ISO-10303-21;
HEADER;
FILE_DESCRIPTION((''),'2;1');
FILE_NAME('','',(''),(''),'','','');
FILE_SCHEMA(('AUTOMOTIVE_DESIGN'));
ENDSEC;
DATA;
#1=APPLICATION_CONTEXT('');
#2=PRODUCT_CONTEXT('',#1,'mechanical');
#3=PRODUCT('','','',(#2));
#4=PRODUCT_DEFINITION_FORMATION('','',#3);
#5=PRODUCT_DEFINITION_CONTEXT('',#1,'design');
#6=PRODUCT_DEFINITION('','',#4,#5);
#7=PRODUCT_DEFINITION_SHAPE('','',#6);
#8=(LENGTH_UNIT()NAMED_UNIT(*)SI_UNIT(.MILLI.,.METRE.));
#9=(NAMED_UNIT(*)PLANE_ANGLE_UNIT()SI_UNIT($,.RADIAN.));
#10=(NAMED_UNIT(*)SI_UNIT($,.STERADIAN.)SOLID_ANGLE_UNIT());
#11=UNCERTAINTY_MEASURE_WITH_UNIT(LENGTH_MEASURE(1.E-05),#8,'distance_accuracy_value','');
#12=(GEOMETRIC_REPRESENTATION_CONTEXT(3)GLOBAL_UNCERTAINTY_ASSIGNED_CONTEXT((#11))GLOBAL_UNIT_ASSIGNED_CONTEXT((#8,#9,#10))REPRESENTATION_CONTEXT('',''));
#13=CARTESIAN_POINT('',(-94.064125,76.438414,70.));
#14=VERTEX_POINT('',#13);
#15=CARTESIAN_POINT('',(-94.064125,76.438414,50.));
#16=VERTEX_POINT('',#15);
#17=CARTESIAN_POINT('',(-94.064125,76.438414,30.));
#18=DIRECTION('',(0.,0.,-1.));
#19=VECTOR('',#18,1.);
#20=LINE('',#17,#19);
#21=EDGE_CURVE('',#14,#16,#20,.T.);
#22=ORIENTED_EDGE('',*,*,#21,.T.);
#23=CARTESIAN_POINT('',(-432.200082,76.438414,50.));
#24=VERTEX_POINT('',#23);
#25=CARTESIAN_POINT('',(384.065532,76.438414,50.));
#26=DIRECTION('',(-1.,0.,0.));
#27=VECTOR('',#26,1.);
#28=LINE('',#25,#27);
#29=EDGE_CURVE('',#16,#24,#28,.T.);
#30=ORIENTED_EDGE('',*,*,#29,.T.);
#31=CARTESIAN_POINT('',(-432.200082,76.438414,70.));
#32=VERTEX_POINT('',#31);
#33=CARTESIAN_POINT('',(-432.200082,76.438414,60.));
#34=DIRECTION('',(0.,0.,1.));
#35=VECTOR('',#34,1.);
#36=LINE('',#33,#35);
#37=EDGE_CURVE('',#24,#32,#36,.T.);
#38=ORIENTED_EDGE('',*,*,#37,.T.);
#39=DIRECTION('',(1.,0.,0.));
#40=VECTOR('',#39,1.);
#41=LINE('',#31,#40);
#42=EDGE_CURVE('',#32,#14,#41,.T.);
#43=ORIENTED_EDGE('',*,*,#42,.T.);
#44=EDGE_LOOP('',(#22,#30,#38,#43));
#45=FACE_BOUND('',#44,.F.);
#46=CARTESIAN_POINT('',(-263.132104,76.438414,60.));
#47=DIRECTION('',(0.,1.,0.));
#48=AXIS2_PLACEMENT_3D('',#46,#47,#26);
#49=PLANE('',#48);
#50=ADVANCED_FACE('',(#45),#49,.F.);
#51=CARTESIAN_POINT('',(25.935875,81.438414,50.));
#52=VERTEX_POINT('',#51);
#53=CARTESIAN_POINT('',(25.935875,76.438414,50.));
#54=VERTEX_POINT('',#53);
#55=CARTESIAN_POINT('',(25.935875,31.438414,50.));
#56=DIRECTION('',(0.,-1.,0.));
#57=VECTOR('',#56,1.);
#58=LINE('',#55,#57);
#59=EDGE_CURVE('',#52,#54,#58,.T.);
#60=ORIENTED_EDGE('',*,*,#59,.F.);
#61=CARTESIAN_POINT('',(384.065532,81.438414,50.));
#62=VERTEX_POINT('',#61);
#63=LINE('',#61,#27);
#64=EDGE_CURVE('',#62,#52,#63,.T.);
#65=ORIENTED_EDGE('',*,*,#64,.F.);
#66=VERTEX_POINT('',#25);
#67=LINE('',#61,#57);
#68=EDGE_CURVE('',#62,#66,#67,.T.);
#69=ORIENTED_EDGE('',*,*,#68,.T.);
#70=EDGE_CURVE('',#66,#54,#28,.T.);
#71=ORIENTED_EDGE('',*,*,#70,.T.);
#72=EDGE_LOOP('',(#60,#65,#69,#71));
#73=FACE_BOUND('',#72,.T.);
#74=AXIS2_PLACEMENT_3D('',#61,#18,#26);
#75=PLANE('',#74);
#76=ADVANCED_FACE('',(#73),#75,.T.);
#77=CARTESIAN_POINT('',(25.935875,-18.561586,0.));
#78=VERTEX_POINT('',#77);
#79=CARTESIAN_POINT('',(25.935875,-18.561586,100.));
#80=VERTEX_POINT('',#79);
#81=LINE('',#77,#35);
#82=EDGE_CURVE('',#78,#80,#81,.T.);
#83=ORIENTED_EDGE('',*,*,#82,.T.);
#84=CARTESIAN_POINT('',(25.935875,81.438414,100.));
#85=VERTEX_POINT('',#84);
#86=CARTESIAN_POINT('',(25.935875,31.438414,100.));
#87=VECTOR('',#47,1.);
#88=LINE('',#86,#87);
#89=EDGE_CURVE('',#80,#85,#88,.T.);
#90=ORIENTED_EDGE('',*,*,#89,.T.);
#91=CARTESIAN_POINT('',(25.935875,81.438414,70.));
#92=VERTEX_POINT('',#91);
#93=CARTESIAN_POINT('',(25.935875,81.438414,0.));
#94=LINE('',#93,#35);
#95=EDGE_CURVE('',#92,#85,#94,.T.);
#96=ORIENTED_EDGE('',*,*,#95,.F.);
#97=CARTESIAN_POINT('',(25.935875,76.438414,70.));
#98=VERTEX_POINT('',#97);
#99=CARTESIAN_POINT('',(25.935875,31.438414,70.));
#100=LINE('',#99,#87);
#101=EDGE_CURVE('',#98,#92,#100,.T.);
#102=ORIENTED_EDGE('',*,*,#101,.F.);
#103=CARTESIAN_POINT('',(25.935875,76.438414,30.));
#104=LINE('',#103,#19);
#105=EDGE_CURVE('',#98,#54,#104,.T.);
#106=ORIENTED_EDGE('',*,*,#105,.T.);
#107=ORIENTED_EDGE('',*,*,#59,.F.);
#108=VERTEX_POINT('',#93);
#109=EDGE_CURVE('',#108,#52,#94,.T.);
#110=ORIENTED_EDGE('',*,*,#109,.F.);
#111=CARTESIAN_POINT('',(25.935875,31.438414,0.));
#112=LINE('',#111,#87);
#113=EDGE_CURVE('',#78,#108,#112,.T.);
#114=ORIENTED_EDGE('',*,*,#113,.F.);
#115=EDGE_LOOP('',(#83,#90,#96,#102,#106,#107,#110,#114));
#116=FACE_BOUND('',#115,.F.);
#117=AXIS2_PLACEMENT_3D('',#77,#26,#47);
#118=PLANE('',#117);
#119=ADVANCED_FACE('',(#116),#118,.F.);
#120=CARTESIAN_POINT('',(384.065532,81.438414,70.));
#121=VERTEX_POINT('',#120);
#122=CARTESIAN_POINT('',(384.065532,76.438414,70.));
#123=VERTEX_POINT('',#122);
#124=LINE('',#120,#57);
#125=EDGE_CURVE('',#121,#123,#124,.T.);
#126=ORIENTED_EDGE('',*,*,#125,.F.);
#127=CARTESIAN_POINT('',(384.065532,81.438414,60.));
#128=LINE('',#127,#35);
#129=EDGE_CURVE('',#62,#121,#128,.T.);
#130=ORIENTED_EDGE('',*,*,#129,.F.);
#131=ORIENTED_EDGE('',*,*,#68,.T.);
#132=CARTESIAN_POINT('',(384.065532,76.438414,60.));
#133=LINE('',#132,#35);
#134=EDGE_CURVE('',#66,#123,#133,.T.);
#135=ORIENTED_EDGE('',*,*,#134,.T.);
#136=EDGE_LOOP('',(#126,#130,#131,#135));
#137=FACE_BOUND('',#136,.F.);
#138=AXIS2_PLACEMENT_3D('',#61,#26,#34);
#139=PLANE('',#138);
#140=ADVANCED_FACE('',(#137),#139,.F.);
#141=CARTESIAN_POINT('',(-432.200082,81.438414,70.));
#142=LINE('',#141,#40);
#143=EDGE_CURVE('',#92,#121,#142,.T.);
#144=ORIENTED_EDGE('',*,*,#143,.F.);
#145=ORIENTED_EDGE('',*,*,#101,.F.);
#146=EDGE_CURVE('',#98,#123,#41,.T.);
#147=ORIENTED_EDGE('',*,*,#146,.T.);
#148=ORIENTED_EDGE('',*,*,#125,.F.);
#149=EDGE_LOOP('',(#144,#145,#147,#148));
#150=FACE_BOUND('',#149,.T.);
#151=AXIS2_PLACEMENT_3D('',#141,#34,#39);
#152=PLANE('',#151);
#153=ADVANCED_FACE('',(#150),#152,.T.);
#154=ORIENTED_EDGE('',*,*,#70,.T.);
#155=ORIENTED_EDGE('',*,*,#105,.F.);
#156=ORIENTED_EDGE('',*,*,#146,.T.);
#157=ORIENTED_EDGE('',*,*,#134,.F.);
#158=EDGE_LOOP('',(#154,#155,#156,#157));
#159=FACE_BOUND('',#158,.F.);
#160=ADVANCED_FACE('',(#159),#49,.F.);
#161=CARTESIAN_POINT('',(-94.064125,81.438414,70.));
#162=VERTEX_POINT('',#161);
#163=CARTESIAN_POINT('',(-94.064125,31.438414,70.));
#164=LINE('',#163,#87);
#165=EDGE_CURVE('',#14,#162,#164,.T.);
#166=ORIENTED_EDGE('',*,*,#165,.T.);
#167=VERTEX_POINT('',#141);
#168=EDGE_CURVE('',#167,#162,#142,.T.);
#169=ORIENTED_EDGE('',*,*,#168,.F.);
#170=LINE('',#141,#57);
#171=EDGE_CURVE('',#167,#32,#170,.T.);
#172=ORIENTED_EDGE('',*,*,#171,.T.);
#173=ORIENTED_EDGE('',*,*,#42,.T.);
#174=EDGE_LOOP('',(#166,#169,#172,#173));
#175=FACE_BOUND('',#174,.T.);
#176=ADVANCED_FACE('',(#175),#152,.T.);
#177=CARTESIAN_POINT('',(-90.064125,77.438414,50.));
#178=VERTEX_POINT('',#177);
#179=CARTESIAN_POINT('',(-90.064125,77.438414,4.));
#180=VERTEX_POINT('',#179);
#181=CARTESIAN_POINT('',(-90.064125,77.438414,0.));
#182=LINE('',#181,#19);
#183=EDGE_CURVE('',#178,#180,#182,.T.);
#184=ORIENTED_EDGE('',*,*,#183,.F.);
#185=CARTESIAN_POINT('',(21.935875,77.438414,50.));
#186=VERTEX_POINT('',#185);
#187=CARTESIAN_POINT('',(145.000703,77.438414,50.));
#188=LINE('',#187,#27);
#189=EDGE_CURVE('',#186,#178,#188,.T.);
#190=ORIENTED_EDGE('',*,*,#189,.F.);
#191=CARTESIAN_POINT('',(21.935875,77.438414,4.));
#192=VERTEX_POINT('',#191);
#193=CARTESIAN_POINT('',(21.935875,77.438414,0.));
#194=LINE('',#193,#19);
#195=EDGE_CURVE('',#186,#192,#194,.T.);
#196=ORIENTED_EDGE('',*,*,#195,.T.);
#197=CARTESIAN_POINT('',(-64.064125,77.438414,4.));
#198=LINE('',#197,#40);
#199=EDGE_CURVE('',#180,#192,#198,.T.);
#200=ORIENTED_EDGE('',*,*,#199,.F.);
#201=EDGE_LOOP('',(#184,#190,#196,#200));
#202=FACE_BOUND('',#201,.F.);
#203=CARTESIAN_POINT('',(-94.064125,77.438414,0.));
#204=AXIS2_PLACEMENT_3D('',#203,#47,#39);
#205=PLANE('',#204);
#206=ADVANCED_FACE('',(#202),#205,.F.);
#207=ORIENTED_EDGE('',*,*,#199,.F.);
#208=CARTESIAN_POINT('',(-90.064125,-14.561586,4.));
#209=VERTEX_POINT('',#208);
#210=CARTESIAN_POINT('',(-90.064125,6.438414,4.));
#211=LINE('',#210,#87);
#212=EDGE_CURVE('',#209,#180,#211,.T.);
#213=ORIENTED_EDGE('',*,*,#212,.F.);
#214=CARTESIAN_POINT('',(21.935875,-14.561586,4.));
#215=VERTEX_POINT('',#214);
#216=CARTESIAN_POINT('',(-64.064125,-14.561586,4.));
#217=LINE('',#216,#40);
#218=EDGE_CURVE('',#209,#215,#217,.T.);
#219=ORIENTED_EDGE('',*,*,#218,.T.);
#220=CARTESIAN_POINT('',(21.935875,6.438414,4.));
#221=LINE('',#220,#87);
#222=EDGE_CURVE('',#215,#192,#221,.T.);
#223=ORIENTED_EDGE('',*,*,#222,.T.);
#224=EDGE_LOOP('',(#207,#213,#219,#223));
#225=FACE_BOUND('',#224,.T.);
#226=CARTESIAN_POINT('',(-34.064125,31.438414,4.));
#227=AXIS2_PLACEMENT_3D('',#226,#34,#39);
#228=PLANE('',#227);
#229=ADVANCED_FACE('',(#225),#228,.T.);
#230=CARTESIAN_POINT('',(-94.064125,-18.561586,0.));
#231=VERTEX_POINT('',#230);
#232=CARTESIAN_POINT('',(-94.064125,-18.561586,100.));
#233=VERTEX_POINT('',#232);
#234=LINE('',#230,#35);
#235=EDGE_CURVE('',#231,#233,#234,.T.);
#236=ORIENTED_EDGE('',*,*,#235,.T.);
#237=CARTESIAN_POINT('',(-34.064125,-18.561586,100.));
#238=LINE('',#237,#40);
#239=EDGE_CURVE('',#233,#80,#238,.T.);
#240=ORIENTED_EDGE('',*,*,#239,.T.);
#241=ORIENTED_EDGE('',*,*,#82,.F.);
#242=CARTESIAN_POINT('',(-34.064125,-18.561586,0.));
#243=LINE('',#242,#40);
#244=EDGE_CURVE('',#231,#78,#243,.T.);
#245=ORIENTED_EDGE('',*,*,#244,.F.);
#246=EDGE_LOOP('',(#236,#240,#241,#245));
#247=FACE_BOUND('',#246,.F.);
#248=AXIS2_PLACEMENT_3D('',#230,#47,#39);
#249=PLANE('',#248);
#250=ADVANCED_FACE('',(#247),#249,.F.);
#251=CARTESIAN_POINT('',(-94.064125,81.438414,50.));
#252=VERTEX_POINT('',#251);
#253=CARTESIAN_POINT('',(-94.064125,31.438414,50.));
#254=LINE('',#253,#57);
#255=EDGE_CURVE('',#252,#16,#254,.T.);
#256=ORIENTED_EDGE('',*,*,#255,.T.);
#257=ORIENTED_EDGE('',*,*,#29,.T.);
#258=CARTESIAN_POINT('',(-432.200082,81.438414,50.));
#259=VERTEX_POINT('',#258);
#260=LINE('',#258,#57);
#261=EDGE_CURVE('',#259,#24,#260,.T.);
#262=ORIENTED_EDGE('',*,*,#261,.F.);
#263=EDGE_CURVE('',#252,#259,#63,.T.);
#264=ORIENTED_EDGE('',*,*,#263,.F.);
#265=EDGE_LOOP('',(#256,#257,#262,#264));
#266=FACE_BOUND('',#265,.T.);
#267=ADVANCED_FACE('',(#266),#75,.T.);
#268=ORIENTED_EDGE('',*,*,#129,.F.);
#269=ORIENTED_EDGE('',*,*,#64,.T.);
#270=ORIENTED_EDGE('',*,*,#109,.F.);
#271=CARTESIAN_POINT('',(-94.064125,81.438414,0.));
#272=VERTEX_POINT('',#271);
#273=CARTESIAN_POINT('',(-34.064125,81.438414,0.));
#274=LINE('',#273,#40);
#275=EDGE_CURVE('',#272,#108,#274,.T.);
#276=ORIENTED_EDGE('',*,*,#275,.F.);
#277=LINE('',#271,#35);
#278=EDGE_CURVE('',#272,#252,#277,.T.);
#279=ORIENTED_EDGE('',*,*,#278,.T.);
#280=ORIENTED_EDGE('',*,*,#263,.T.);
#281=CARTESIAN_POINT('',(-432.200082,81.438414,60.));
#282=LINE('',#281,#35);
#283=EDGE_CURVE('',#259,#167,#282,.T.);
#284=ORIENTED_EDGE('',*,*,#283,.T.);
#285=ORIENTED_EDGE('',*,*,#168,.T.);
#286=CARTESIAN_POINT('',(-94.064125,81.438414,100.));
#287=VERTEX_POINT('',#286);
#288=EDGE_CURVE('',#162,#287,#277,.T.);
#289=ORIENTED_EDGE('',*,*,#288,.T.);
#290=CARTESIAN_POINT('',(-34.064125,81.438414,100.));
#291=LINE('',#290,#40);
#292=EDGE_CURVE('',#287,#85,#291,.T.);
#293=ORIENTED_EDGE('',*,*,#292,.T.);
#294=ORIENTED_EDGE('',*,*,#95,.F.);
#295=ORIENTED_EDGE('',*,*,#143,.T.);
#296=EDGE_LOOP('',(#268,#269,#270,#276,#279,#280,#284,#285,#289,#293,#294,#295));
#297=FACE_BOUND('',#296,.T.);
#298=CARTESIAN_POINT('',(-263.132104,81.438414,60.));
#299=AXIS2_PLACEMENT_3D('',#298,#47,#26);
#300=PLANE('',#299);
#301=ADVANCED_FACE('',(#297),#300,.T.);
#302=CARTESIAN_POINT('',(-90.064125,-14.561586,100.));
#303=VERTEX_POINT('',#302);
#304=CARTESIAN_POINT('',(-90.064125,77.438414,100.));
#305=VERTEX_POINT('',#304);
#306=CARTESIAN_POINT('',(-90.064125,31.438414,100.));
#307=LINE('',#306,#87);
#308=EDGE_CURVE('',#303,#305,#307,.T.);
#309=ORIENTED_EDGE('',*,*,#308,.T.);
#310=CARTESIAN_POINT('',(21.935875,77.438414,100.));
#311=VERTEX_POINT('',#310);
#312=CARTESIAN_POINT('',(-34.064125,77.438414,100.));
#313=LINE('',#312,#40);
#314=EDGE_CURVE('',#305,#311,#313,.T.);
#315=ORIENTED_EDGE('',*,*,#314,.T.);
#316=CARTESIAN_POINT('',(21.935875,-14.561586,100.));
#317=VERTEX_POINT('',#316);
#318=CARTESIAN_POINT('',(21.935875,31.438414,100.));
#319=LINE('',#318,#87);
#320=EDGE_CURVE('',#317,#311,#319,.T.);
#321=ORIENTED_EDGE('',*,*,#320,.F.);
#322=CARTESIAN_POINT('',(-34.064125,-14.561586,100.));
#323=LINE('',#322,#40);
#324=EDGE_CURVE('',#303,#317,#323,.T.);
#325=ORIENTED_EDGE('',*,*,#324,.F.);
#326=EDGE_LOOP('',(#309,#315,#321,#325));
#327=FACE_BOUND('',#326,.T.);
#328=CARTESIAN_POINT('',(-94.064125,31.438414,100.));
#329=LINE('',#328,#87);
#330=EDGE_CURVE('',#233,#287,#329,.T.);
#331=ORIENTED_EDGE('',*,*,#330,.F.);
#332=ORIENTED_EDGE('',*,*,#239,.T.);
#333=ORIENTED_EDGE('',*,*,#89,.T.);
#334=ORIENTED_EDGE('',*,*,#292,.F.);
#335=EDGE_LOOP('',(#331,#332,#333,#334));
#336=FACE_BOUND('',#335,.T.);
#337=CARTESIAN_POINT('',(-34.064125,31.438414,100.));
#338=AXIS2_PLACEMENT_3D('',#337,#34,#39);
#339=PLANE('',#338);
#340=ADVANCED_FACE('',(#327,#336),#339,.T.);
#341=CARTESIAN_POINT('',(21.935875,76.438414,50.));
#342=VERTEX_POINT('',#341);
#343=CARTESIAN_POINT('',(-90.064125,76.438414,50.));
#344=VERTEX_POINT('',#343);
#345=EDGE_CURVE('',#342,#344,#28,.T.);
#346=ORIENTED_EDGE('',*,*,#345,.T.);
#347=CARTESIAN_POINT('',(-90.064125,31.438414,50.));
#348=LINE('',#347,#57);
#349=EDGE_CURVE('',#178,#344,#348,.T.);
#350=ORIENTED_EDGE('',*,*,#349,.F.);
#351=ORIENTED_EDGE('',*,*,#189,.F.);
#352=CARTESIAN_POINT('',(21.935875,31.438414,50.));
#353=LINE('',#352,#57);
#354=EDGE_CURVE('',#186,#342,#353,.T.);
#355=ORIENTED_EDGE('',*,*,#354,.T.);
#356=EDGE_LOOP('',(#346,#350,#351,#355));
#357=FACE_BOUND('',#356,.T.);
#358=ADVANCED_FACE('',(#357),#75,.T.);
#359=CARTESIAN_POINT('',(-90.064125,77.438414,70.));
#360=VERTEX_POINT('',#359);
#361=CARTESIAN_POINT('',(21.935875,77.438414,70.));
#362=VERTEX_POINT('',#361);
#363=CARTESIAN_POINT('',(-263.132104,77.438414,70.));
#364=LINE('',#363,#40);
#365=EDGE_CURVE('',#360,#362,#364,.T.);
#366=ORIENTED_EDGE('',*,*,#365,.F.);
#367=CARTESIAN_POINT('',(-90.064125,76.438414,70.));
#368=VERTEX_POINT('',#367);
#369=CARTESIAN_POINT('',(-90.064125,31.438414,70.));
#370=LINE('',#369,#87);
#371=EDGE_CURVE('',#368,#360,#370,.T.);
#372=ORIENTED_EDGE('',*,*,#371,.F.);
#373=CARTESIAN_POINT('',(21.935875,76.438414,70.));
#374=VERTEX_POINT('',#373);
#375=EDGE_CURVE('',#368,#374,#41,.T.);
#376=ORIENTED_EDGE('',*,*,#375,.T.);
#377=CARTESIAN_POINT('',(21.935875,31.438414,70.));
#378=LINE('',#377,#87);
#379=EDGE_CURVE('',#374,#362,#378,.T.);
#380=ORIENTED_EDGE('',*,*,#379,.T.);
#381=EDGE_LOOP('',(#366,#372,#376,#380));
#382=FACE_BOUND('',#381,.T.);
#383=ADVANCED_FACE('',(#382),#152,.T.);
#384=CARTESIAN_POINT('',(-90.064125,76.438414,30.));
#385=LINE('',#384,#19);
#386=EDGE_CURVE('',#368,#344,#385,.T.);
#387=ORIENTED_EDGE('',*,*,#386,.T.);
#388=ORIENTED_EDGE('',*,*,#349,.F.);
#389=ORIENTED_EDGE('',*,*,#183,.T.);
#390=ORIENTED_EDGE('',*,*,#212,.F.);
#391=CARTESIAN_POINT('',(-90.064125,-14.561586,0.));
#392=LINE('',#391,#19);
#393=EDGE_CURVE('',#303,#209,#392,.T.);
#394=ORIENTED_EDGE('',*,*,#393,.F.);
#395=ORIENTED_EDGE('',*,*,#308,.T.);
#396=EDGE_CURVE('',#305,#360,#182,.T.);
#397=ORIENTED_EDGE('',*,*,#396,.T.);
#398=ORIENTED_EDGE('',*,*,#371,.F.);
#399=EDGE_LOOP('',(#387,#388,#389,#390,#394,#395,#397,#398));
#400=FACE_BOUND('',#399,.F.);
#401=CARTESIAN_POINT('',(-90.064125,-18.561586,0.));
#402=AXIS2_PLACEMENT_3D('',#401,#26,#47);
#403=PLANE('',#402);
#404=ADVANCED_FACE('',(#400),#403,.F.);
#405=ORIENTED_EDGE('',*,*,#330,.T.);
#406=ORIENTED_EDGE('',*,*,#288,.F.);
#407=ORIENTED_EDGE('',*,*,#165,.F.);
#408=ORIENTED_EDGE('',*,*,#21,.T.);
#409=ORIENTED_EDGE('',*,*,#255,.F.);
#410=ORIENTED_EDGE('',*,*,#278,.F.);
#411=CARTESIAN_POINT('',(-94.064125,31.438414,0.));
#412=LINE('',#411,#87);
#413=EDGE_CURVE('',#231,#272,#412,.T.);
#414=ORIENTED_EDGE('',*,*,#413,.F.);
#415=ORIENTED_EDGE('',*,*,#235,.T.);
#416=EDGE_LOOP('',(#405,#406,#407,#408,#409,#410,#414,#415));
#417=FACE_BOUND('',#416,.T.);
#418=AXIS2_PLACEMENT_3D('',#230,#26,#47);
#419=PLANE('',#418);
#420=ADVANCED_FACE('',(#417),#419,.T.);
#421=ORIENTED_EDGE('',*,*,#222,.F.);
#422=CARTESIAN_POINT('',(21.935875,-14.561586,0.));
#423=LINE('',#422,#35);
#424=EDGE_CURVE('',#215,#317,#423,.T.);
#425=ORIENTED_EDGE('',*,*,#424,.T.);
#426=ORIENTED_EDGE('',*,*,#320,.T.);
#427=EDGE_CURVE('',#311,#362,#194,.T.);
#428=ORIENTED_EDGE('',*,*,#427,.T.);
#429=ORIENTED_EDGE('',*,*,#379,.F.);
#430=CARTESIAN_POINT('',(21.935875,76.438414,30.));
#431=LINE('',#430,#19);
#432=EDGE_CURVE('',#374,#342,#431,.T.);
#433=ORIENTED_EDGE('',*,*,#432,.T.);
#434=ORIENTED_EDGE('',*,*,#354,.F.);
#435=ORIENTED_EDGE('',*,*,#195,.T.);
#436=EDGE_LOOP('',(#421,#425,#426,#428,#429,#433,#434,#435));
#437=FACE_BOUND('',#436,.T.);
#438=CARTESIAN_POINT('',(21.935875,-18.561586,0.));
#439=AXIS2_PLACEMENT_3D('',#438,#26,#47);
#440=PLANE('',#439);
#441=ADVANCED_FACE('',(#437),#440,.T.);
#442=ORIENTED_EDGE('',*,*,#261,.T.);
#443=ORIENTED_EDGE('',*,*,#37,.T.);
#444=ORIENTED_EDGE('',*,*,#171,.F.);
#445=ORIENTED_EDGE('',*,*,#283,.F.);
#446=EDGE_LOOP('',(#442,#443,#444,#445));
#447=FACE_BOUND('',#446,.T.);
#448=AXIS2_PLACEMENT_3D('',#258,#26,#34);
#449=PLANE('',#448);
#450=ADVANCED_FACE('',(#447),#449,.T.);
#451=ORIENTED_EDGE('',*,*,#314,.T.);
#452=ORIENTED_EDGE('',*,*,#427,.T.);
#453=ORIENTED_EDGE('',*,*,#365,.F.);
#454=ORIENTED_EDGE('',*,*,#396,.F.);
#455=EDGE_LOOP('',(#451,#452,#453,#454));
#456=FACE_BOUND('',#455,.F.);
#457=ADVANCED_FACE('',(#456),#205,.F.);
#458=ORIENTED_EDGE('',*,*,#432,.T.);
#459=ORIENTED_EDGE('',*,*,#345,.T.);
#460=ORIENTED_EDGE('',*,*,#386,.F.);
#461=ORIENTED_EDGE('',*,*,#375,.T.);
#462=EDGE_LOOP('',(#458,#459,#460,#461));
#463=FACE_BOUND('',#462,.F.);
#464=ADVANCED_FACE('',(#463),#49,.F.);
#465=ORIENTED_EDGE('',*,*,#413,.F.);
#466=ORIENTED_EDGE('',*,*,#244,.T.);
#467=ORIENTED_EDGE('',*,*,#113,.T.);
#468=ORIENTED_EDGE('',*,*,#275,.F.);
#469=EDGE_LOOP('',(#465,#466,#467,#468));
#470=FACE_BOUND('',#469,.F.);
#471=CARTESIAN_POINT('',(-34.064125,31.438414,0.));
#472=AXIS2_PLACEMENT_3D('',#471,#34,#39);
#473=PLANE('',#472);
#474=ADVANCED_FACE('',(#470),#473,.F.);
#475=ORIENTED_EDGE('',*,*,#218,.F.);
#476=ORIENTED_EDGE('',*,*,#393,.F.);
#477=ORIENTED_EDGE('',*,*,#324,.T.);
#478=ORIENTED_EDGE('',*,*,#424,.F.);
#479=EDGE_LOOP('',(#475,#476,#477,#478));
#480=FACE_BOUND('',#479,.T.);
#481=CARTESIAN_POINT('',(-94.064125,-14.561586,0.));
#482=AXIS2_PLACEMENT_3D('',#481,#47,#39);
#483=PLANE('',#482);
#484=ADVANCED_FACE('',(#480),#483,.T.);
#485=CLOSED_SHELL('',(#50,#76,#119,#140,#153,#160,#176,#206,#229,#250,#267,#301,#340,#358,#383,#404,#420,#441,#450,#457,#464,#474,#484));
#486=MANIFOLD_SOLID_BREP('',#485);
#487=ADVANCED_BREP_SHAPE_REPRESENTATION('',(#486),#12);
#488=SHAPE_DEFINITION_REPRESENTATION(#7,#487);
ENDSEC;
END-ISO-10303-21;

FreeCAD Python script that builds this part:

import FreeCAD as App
import Part
import Sketcher

V = App.Vector


def faces_at(feature, points):
    """Names of the faces that lie closest to the given points."""
    faces = feature.Shape.Faces
    near = lambda p: min(range(len(faces)), key=lambda i: faces[i].distToShape(Part.Vertex(*p))[0])
    return sorted({f"Face{near(p) + 1}" for p in points})


def add_polygon(sketch, points):
    """Adds a closed chain of lines whose ends are joined by coincident constraints."""
    first, n = sketch.GeometryCount, len(points)
    for a, b in zip(points, points[1:] + points[:1]):
        sketch.addGeometry(Part.LineSegment(App.Vector(*a, 0), App.Vector(*b, 0)), False)
    for i in range(n):
        sketch.addConstraint(Sketcher.Constraint("Coincident", first + i, 2, first + (i + 1) % n, 1))

doc = App.newDocument("Part")
body = doc.addObject("PartDesign::Body", "Body")

# Sketch on XY plane
sketch1 = body.newObject("Sketcher::SketchObject", "Sketch")
sketch1.AttachmentSupport = (doc.getObject("XY_Plane"), [""])
sketch1.MapMode = "FlatFace"
add_polygon(sketch1, [(-94.064125, 81.438414), (-94.064125, -18.561586), (25.935875, -18.561586), (25.935875, 81.438414)])  # lines 0-3
sketch1.addConstraint([
    Sketcher.Constraint("Vertical", 0),
    Sketcher.Constraint("Horizontal", 1),
    Sketcher.Constraint("Vertical", 2),
    Sketcher.Constraint("Horizontal", 3),
    Sketcher.Constraint("DistanceX", 1, 1, 1, 2, 120.0),
    Sketcher.Constraint("DistanceY", 0, 2, 0, 1, 100.0),
    Sketcher.Constraint("DistanceX", 0, 2, -1, 1, 94.064125),
    Sketcher.Constraint("DistanceY", 0, 2, -1, 1, 18.561586),
])
pad1 = body.newObject("PartDesign::Pad", "Pad")
pad1.Profile = sketch1
pad1.Length = 100
doc.recompute()

thickness = body.newObject("PartDesign::Thickness", "Thickness")
thickness.Base = (pad1, faces_at(pad1, [(-34.064, 31.438, 100)]))
thickness.Value = 4
thickness.Reversed = True
thickness.Join = "Arc"

# Sketch on XZ plane
sketch2 = body.newObject("Sketcher::SketchObject", "Sketch001")
sketch2.AttachmentSupport = (doc.getObject("XZ_Plane"), [""])
sketch2.MapMode = "FlatFace"
sketch2.AttachmentOffset = App.Placement(V(0, 0, -81.438414), App.Rotation())
add_polygon(sketch2, [(-432.200082, 50), (-432.200082, 70), (384.065532, 70), (384.065532, 50)])  # lines 0-3
sketch2.addConstraint([
    Sketcher.Constraint("Vertical", 0),
    Sketcher.Constraint("Horizontal", 1),
    Sketcher.Constraint("Vertical", 2),
    Sketcher.Constraint("Horizontal", 3),
    Sketcher.Constraint("DistanceY", 0, 1, 0, 2, 20.0),
    Sketcher.Constraint("DistanceY", -1, 1, 0, 2, 70.0),
    Sketcher.Constraint("DistanceX", 1, 1, 1, 2, 816.265614),
    Sketcher.Constraint("DistanceX", -1, 1, 1, 2, 384.065532),
])
pad2 = body.newObject("PartDesign::Pad", "Pad001")
pad2.Profile = sketch2
pad2.Length = 5

doc.recompute()
